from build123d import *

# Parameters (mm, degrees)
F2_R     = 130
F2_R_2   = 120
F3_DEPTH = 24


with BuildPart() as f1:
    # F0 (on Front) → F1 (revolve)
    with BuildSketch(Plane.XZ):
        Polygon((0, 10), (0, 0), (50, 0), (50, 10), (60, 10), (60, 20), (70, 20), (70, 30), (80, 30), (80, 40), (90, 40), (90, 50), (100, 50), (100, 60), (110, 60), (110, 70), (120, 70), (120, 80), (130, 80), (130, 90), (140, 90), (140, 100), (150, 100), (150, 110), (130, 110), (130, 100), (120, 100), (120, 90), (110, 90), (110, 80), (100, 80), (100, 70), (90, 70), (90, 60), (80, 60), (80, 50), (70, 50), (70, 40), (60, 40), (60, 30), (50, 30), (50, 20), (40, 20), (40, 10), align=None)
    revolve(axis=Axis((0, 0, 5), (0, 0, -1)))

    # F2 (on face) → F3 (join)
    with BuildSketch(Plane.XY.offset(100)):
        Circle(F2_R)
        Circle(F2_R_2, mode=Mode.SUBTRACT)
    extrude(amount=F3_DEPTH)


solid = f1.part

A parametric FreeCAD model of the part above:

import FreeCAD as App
import Part
import Sketcher

V = App.Vector


def add_polygon(sketch, points):
    """Adds a closed chain of lines whose ends are joined by coincident constraints."""
    first, n = sketch.GeometryCount, len(points)
    for a, b in zip(points, points[1:] + points[:1]):
        sketch.addGeometry(Part.LineSegment(App.Vector(*a, 0), App.Vector(*b, 0)), False)
    for i in range(n):
        sketch.addConstraint(Sketcher.Constraint("Coincident", first + i, 2, first + (i + 1) % n, 1))

doc = App.newDocument("Part")
body = doc.addObject("PartDesign::Body", "Body")

sketch1 = body.newObject("Sketcher::SketchObject", "Sketch")
sketch1.AttachmentSupport = (doc.getObject("XZ_Plane"), [""])
sketch1.MapMode = "FlatFace"
add_polygon(sketch1, [(0, 10), (0, 0), (50, 0), (50, 10), (60, 10), (60, 20), (70, 20), (70, 30), (80, 30), (80, 40), (90, 40), (90, 50), (100, 50), (100, 60), (110, 60), (110, 70), (120, 70), (120, 80), (130, 80), (130, 90), (140, 90), (140, 100), (150, 100), (150, 110), (130, 110), (130, 100), (120, 100), (120, 90), (110, 90), (110, 80), (100, 80), (100, 70), (90, 70), (90, 60), (80, 60), (80, 50), (70, 50), (70, 40), (60, 40), (60, 30), (50, 30), (50, 20), (40, 20), (40, 10)])
sketch1.addConstraint(Sketcher.Constraint("Vertical", 0))
sketch1.addConstraint(Sketcher.Constraint("Horizontal", 1))
sketch1.addConstraint(Sketcher.Constraint("Vertical", 2))
sketch1.addConstraint(Sketcher.Constraint("Horizontal", 3))
sketch1.addConstraint(Sketcher.Constraint("Vertical", 4))
sketch1.addConstraint(Sketcher.Constraint("Horizontal", 5))
sketch1.addConstraint(Sketcher.Constraint("Vertical", 6))
sketch1.addConstraint(Sketcher.Constraint("Horizontal", 7))
sketch1.addConstraint(Sketcher.Constraint("Vertical", 8))
sketch1.addConstraint(Sketcher.Constraint("Horizontal", 9))
sketch1.addConstraint(Sketcher.Constraint("Vertical", 10))
sketch1.addConstraint(Sketcher.Constraint("Horizontal", 11))
sketch1.addConstraint(Sketcher.Constraint("Vertical", 12))
sketch1.addConstraint(Sketcher.Constraint("Horizontal", 13))
sketch1.addConstraint(Sketcher.Constraint("Vertical", 14))
sketch1.addConstraint(Sketcher.Constraint("Horizontal", 15))
sketch1.addConstraint(Sketcher.Constraint("Vertical", 16))
sketch1.addConstraint(Sketcher.Constraint("Horizontal", 17))
sketch1.addConstraint(Sketcher.Constraint("Vertical", 18))
sketch1.addConstraint(Sketcher.Constraint("Horizontal", 19))
sketch1.addConstraint(Sketcher.Constraint("Vertical", 20))
sketch1.addConstraint(Sketcher.Constraint("Horizontal", 21))
sketch1.addConstraint(Sketcher.Constraint("Vertical", 22))
sketch1.addConstraint(Sketcher.Constraint("Horizontal", 23))
sketch1.addConstraint(Sketcher.Constraint("Vertical", 24))
sketch1.addConstraint(Sketcher.Constraint("Horizontal", 25))
sketch1.addConstraint(Sketcher.Constraint("Vertical", 26))
sketch1.addConstraint(Sketcher.Constraint("Horizontal", 27))
sketch1.addConstraint(Sketcher.Constraint("Vertical", 28))
sketch1.addConstraint(Sketcher.Constraint("Horizontal", 29))
sketch1.addConstraint(Sketcher.Constraint("Vertical", 30))
sketch1.addConstraint(Sketcher.Constraint("Horizontal", 31))
sketch1.addConstraint(Sketcher.Constraint("Vertical", 32))
sketch1.addConstraint(Sketcher.Constraint("Horizontal", 33))
sketch1.addConstraint(Sketcher.Constraint("Vertical", 34))
sketch1.addConstraint(Sketcher.Constraint("Horizontal", 35))
sketch1.addConstraint(Sketcher.Constraint("Vertical", 36))
sketch1.addConstraint(Sketcher.Constraint("Horizontal", 37))
sketch1.addConstraint(Sketcher.Constraint("Vertical", 38))
sketch1.addConstraint(Sketcher.Constraint("Horizontal", 39))
sketch1.addConstraint(Sketcher.Constraint("Vertical", 40))
sketch1.addConstraint(Sketcher.Constraint("Horizontal", 41))
sketch1.addConstraint(Sketcher.Constraint("Vertical", 42))
sketch1.addConstraint(Sketcher.Constraint("Horizontal", 43))
sketch1.addConstraint(Sketcher.Constraint("Coincident", 0, 2, -1, 1))
sketch1.addConstraint(Sketcher.Constraint("Horizontal", 21, 2, 24, 2))
sketch1.addConstraint(Sketcher.Constraint("Horizontal", 19, 2, 26, 2))
sketch1.addConstraint(Sketcher.Constraint("Horizontal", 17, 2, 28, 2))
sketch1.addConstraint(Sketcher.Constraint("Horizontal", 15, 2, 30, 2))
sketch1.addConstraint(Sketcher.Constraint("Horizontal", 13, 2, 32, 2))
sketch1.addConstraint(Sketcher.Constraint("Horizontal", 11, 2, 34, 2))
sketch1.addConstraint(Sketcher.Constraint("Horizontal", 9, 2, 36, 2))
sketch1.addConstraint(Sketcher.Constraint("Horizontal", 7, 2, 38, 2))
sketch1.addConstraint(Sketcher.Constraint("Horizontal", 5, 2, 40, 2))
sketch1.addConstraint(Sketcher.Constraint("Horizontal", 3, 2, 42, 2))
sketch1.addConstraint(Sketcher.Constraint("Vertical", 18, 2, 23, 2))
sketch1.addConstraint(Sketcher.Constraint("Vertical", 16, 2, 25, 2))
sketch1.addConstraint(Sketcher.Constraint("Vertical", 14, 2, 27, 2))
sketch1.addConstraint(Sketcher.Constraint("Vertical", 12, 2, 29, 2))
sketch1.addConstraint(Sketcher.Constraint("Vertical", 10, 2, 31, 2))
sketch1.addConstraint(Sketcher.Constraint("Vertical", 8, 2, 33, 2))
sketch1.addConstraint(Sketcher.Constraint("Vertical", 6, 2, 35, 2))
sketch1.addConstraint(Sketcher.Constraint("Vertical", 4, 2, 37, 2))
sketch1.addConstraint(Sketcher.Constraint("Vertical", 2, 2, 39, 2))
sketch1.addConstraint(Sketcher.Constraint("Equal", 3, 5))
sketch1.addConstraint(Sketcher.Constraint("Equal", 5, 7))
sketch1.addConstraint(Sketcher.Constraint("Equal", 7, 9))
sketch1.addConstraint(Sketcher.Constraint("Equal", 9, 11))
sketch1.addConstraint(Sketcher.Constraint("Equal", 11, 13))
sketch1.addConstraint(Sketcher.Constraint("Equal", 13, 15))
sketch1.addConstraint(Sketcher.Constraint("Equal", 15, 17))
sketch1.addConstraint(Sketcher.Constraint("Equal", 17, 19))
sketch1.addConstraint(Sketcher.Constraint("Equal", 19, 21))
sketch1.addConstraint(Sketcher.Constraint("Equal", 39, 41))
sketch1.addConstraint(Sketcher.Constraint("Equal", 41, 0))
sketch1.addConstraint(Sketcher.Constraint("Equal", 2, 4))
sketch1.addConstraint(Sketcher.Constraint("Equal", 4, 6))
sketch1.addConstraint(Sketcher.Constraint("Equal", 6, 8))
sketch1.addConstraint(Sketcher.Constraint("Equal", 8, 10))
sketch1.addConstraint(Sketcher.Constraint("Equal", 10, 12))
sketch1.addConstraint(Sketcher.Constraint("Equal", 12, 14))
sketch1.addConstraint(Sketcher.Constraint("Equal", 14, 16))
sketch1.addConstraint(Sketcher.Constraint("Equal", 16, 18))
sketch1.addConstraint(Sketcher.Constraint("Equal", 18, 20))
sketch1.addConstraint(Sketcher.Constraint("Equal", 20, 22))
sketch1.addConstraint(Sketcher.Constraint("DistanceX", 1, 1, 1, 2, 50.0))
sketch1.addConstraint(Sketcher.Constraint("DistanceX", 3, 1, 3, 2, 10.0))
revolution = body.newObject("PartDesign::Revolution", "Revolution")
revolution.Profile = sketch1
revolution.ReferenceAxis = (sketch1, ["V_Axis"])
revolution.Angle = 360

sketch2 = body.newObject("Sketcher::SketchObject", "Sketch001")
sketch2.AttachmentSupport = (doc.getObject("XY_Plane"), [""])
sketch2.MapMode = "FlatFace"
sketch2.AttachmentOffset = App.Placement(V(0, 0, 100), App.Rotation())
sketch2.addGeometry(Part.Circle(V(0, 0, 0), V(0, 0, 1), 130), False)
sketch2.addGeometry(Part.Circle(V(0, 0, 0), V(0, 0, 1), 120), False)
sketch2.addConstraint(Sketcher.Constraint("Coincident", 0, 3, -1, 1))
sketch2.addConstraint(Sketcher.Constraint("Coincident", 1, 3, -1, 1))
sketch2.addConstraint(Sketcher.Constraint("Diameter", 0, 260.0))
sketch2.addConstraint(Sketcher.Constraint("Diameter", 1, 240.0))
pad1 = body.newObject("PartDesign::Pad", "Pad")
pad1.Profile = sketch2
pad1.Length = 24

doc.recompute()
